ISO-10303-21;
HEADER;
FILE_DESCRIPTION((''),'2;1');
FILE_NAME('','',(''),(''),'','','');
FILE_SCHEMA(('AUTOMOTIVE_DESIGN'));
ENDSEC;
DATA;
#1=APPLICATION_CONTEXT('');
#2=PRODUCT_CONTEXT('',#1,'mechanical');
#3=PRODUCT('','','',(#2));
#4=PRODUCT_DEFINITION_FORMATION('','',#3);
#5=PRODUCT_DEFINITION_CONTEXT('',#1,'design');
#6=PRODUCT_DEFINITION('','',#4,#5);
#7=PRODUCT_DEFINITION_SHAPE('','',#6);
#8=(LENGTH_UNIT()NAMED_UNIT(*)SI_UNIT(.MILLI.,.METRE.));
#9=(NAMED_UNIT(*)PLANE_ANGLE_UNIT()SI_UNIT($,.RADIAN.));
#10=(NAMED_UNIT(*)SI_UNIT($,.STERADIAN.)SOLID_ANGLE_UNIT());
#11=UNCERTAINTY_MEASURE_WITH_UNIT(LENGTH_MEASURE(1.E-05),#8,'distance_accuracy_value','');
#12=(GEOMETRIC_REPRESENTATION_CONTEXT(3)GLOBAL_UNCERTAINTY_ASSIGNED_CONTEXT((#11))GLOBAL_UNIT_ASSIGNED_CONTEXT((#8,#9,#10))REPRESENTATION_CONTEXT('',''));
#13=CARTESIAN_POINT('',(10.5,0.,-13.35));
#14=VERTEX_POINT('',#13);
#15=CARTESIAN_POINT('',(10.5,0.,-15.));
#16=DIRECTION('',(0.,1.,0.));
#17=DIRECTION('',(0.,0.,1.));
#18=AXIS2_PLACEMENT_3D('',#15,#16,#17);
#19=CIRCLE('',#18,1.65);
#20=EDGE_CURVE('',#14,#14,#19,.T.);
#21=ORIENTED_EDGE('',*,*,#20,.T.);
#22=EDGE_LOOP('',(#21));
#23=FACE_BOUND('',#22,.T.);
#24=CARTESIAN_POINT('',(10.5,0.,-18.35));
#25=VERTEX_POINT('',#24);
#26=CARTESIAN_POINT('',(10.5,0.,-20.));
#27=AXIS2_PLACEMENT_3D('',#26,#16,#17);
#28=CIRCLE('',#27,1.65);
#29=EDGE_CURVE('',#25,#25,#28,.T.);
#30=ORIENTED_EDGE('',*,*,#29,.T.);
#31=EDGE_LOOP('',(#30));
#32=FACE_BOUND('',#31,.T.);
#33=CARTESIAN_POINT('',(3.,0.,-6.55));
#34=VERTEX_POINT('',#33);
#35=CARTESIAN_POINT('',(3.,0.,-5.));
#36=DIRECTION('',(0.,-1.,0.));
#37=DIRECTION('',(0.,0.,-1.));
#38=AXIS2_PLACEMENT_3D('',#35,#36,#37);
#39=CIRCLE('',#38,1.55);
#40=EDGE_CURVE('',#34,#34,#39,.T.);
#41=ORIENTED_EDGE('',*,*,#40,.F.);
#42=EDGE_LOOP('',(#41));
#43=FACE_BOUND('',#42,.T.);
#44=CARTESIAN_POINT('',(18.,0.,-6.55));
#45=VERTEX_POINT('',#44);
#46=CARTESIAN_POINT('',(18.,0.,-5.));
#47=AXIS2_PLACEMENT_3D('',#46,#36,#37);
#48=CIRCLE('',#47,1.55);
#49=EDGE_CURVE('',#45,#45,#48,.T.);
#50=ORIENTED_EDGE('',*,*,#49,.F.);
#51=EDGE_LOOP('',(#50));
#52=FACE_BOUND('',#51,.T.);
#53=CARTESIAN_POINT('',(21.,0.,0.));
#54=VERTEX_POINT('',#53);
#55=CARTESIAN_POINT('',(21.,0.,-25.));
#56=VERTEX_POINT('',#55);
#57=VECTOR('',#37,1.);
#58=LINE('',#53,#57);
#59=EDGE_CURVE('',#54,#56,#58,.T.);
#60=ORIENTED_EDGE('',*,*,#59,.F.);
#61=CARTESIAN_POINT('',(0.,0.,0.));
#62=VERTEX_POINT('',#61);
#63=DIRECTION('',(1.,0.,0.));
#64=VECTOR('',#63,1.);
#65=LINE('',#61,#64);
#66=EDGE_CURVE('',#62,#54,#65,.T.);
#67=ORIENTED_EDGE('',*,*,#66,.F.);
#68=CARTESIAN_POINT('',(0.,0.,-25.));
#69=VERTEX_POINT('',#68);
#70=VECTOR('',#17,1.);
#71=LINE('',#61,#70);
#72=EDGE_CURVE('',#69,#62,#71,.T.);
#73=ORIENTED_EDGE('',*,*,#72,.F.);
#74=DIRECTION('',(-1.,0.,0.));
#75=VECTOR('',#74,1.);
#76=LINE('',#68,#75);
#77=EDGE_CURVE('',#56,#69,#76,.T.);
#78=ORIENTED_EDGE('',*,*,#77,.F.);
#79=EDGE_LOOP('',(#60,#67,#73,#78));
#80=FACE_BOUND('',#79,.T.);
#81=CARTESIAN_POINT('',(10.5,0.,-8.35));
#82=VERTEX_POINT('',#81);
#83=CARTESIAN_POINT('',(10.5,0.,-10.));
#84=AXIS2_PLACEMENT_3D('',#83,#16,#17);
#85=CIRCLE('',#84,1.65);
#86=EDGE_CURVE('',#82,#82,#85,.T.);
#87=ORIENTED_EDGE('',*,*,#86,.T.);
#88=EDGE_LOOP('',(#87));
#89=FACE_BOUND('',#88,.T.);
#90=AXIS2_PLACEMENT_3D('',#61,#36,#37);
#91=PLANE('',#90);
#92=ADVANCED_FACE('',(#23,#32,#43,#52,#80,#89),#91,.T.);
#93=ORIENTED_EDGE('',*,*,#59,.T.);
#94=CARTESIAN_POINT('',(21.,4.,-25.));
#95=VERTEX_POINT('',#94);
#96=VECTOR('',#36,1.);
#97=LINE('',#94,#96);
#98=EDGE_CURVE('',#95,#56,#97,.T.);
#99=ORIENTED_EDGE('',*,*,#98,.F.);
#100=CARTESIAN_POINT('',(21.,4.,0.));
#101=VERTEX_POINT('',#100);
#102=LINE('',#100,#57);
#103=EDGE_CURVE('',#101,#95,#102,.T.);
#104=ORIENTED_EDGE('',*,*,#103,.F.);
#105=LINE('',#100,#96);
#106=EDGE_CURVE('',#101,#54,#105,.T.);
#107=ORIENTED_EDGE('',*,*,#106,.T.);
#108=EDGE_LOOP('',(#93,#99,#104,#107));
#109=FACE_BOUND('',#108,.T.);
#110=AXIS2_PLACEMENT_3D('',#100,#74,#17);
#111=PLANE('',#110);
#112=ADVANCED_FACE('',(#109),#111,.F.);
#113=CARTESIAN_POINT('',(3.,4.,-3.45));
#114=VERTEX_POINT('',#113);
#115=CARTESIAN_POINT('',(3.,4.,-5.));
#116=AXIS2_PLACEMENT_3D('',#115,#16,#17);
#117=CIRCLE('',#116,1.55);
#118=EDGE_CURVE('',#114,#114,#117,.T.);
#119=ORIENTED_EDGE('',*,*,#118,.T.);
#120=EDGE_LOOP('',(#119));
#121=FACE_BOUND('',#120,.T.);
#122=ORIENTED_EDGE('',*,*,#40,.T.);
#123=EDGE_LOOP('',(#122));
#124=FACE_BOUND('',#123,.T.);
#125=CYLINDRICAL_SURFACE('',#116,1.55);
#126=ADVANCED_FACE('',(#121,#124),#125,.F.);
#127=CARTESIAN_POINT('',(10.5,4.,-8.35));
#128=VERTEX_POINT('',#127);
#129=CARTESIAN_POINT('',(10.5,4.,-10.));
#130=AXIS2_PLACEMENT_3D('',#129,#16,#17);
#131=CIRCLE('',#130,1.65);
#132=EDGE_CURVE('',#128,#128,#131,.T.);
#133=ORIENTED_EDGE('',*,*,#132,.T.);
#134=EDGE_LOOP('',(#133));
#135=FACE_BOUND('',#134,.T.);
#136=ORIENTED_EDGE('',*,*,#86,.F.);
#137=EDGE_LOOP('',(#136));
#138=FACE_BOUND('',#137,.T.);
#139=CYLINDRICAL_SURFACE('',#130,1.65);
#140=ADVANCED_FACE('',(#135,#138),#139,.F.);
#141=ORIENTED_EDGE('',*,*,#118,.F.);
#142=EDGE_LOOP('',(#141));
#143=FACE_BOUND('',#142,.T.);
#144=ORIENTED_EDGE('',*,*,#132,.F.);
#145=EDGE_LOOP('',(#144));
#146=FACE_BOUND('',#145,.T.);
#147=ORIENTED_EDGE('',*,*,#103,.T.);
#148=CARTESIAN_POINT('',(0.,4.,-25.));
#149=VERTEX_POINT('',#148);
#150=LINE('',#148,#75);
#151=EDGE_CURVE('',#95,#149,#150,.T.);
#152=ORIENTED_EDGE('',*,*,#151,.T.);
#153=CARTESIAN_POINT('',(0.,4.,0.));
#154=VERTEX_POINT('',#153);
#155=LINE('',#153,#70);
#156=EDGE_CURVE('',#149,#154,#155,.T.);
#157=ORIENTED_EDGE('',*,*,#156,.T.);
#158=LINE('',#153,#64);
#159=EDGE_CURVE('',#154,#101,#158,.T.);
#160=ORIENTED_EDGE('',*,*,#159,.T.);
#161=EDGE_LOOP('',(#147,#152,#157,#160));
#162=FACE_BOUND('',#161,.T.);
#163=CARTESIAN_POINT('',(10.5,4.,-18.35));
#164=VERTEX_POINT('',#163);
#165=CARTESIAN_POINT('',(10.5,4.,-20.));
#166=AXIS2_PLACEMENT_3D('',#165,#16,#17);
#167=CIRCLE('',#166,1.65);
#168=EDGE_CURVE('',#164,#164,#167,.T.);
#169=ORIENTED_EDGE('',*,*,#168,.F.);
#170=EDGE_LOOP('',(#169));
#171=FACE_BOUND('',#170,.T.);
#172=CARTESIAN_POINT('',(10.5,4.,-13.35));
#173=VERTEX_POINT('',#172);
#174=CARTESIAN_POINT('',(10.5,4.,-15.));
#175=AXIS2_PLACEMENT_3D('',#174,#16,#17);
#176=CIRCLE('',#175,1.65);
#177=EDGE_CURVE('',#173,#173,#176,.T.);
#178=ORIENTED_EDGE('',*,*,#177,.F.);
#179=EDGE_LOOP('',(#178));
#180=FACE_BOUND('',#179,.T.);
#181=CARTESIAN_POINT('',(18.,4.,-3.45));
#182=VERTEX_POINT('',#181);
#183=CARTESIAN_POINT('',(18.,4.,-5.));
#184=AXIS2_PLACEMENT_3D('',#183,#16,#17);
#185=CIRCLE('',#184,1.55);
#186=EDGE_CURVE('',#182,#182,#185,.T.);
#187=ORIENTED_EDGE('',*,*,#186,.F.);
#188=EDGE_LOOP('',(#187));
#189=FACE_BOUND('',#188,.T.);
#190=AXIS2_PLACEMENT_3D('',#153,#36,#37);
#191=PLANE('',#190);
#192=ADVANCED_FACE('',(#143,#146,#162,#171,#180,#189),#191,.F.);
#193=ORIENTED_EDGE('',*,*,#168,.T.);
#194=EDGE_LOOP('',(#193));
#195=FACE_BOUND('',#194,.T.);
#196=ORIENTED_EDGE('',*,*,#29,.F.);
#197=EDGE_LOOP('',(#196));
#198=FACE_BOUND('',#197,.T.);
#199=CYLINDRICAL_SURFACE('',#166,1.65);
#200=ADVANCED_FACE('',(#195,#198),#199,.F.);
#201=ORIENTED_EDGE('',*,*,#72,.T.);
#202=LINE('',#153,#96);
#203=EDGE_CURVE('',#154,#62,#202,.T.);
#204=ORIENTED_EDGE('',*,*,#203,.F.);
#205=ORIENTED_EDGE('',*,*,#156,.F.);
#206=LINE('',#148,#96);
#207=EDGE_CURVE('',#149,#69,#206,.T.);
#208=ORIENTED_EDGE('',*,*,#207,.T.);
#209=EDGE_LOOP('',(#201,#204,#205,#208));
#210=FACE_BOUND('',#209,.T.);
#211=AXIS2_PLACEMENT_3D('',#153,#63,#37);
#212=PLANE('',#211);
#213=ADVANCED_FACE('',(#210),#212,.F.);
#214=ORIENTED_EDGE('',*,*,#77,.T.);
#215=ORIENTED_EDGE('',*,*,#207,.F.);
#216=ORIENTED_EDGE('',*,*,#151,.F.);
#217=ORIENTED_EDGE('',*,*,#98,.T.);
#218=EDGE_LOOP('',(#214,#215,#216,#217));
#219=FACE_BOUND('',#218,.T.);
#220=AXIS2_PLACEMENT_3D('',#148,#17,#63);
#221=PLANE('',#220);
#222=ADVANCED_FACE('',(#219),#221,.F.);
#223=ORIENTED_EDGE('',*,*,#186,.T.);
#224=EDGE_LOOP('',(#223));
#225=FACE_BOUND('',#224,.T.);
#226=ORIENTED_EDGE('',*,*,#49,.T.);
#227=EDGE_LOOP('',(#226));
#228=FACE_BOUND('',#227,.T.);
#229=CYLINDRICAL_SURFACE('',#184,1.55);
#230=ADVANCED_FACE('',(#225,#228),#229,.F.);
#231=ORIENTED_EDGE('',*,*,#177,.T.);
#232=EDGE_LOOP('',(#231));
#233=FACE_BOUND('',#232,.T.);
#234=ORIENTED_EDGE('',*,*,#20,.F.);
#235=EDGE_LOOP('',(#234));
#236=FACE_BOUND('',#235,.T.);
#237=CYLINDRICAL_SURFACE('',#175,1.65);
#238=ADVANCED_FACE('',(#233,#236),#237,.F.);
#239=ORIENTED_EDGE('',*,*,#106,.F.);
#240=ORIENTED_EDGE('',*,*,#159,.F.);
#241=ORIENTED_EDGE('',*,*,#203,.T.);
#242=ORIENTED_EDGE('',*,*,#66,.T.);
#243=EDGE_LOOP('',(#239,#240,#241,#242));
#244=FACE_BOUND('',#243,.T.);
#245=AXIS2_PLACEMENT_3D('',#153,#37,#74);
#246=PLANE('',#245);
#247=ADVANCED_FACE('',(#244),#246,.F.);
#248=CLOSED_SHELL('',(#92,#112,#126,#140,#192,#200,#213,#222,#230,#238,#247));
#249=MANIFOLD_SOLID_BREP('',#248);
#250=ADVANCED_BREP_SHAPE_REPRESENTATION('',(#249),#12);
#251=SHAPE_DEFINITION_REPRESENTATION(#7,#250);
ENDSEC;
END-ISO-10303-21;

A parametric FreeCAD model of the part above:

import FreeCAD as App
import Part
import Sketcher
from FreeCAD import Vector
Q = App.Units.Quantity


def add_polygon(sketch, points):
    """Adds a closed chain of lines whose ends are joined by coincident constraints."""
    first, n = sketch.GeometryCount, len(points)
    for a, b in zip(points, points[1:] + points[:1]):
        sketch.addGeometry(Part.LineSegment(App.Vector(*a, 0), App.Vector(*b, 0)), False)
    for i in range(n):
        sketch.addConstraint(Sketcher.Constraint("Coincident", first + i, 2, first + (i + 1) % n, 1))

doc = App.newDocument("Part")
body = doc.addObject("PartDesign::Body", "Body")

sketch1 = body.newObject("Sketcher::SketchObject", "Sketch")
sketch1.AttachmentSupport = (doc.getObject("XZ_Plane"), [""])
sketch1.MapMode = "FlatFace"
add_polygon(sketch1, [(0, -25), (0, 0), (21, 0), (21, -25)])
sketch1.addConstraint(Sketcher.Constraint("Vertical", 0))
sketch1.addConstraint(Sketcher.Constraint("Horizontal", 1))
sketch1.addConstraint(Sketcher.Constraint("Vertical", 2))
sketch1.addConstraint(Sketcher.Constraint("Horizontal", 3))
sketch1.addConstraint(Sketcher.Constraint("Coincident", 0, 2, -1, 1))
sketch1.addConstraint(Sketcher.Constraint("DistanceX", 1, 1, 1, 2, Q("21 mm")))
sketch1.addConstraint(Sketcher.Constraint("DistanceY", 0, 1, 0, 2, Q("25 mm")))
pad1 = body.newObject("PartDesign::Pad", "Pad")
pad1.Profile = sketch1
pad1.Length = 4
pad1.Reversed = True

sketch2 = body.newObject("Sketcher::SketchObject", "Sketch001")
sketch2.AttachmentSupport = (doc.getObject("XZ_Plane"), [""])
sketch2.MapMode = "FlatFace"
sketch2.AttachmentOffset = App.Placement(Vector(0, 0, -4), App.Rotation())
sketch2.addGeometry(Part.Circle(Vector(3, -5, 0), Vector(0, 0, 1), 1.6), False)
sketch2.addGeometry(Part.Circle(Vector(18, -5, 0), Vector(0, 0, 1), 1.6), False)
sketch2.addConstraint(Sketcher.Constraint("Equal", 0, 1))
sketch2.addConstraint(Sketcher.Constraint("Horizontal", 0, 3, 1, 3))
sketch2.addConstraint(Sketcher.Constraint("Diameter", 0, Q("3.1 mm")))
sketch2.addConstraint(Sketcher.Constraint("DistanceX", -1, 1, 0, 3, Q("3 mm")))
sketch2.addConstraint(Sketcher.Constraint("DistanceY", 0, 3, -1, 1, Q("5 mm")))
sketch2.addConstraint(Sketcher.Constraint("DistanceX", -1, 1, 1, 3, Q("18 mm")))
doc.recompute()
hole = body.newObject("PartDesign::Hole", "Hole")
hole.Profile = sketch2
hole.ThreadType = "None"
hole.Diameter = 3.1
hole.DepthType = "Dimension"
hole.Depth = 10
hole.DrillPoint = "Angled"
hole.DrillPointAngle = 118
hole.Reversed = True

sketch3 = body.newObject("Sketcher::SketchObject", "Sketch002")
sketch3.AttachmentSupport = (doc.getObject("XZ_Plane"), [""])
sketch3.MapMode = "FlatFace"
sketch3.AttachmentOffset = App.Placement(Vector(0, 0, -4), App.Rotation())
sketch3.addGeometry(Part.Circle(Vector(10.5, -10, 0), Vector(0, 0, 1), 1.6), False)
sketch3.addGeometry(Part.Circle(Vector(10.5, -20, 0), Vector(0, 0, 1), 1.6), False)
sketch3.addGeometry(Part.Circle(Vector(10.5, -15, 0), Vector(0, 0, 1), 1.6), False)
sketch3.addConstraint(Sketcher.Constraint("Equal", 0, 1))
sketch3.addConstraint(Sketcher.Constraint("Equal", 1, 2))
sketch3.addConstraint(Sketcher.Constraint("Vertical", 0, 3, 1, 3))
sketch3.addConstraint(Sketcher.Constraint("Vertical", 1, 3, 2, 3))
sketch3.addConstraint(Sketcher.Constraint("Diameter", 0, Q("3.3 mm")))
sketch3.addConstraint(Sketcher.Constraint("DistanceY", 0, 3, -1, 1, Q("10 mm")))
sketch3.addConstraint(Sketcher.Constraint("DistanceY", 1, 3, -1, 1, Q("20 mm")))
sketch3.addConstraint(Sketcher.Constraint("DistanceY", 2, 3, -1, 1, Q("15 mm")))
sketch3.addConstraint(Sketcher.Constraint("DistanceX", -1, 1, 0, 3, Q("10.5 mm")))
doc.recompute()
hole2 = body.newObject("PartDesign::Hole", "Hole001")
hole2.Profile = sketch3
hole2.ThreadType = "None"
hole2.Diameter = 3.3
hole2.DepthType = "ThroughAll"
hole2.Reversed = True

doc.recompute()
